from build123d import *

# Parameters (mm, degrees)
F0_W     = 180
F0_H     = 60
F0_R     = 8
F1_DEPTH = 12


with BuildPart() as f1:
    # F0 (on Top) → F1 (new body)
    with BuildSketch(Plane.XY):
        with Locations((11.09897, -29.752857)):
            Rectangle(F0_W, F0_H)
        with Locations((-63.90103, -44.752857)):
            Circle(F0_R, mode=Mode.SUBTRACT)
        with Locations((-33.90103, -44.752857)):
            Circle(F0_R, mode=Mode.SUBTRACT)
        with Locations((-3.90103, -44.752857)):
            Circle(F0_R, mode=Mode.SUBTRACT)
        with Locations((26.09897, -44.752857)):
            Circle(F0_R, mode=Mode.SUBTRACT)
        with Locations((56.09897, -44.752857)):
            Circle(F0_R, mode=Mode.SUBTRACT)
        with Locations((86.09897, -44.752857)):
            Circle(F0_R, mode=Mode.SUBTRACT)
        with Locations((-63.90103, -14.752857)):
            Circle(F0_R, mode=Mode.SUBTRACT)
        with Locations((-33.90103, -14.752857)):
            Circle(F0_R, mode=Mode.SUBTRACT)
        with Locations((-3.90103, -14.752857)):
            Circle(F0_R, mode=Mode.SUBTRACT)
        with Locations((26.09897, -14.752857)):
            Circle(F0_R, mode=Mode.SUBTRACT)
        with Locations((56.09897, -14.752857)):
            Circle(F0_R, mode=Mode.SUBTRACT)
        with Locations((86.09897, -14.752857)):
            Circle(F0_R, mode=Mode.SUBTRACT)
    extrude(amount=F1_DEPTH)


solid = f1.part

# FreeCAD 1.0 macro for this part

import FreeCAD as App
import Part
import Sketcher

doc = App.newDocument("Part")
body = doc.addObject("PartDesign::Body", "Body")

# Sketch on XY plane
sketch1 = body.newObject("Sketcher::SketchObject", "Sketch")
sketch1.AttachmentSupport = (doc.getObject("XY_Plane"), [""])
sketch1.MapMode = "FlatFace"
sketch1.addGeometry(Part.LineSegment(App.Vector(-79, 0, 0), App.Vector(-79, -60, 0)), False)
sketch1.addGeometry(Part.LineSegment(App.Vector(-79, -60, 0), App.Vector(101, -60, 0)), False)
sketch1.addGeometry(Part.LineSegment(App.Vector(101, -60, 0), App.Vector(101, 0, 0)), False)
sketch1.addGeometry(Part.LineSegment(App.Vector(101, 0, 0), App.Vector(-79, 0, 0)), False)
sketch1.addGeometry(Part.Circle(App.Vector(-64, -45, 0), App.Vector(0, 0, 1), 8), False)
sketch1.addGeometry(Part.Circle(App.Vector(-34, -45, 0), App.Vector(0, 0, 1), 8), False)
sketch1.addGeometry(Part.Circle(App.Vector(-4, -45, 0), App.Vector(0, 0, 1), 8), False)
sketch1.addGeometry(Part.Circle(App.Vector(26, -45, 0), App.Vector(0, 0, 1), 8), False)
sketch1.addGeometry(Part.Circle(App.Vector(56, -45, 0), App.Vector(0, 0, 1), 8), False)
sketch1.addGeometry(Part.Circle(App.Vector(86, -45, 0), App.Vector(0, 0, 1), 8), False)
sketch1.addGeometry(Part.Circle(App.Vector(-64, -15, 0), App.Vector(0, 0, 1), 8), False)
sketch1.addGeometry(Part.Circle(App.Vector(-34, -15, 0), App.Vector(0, 0, 1), 8), False)
sketch1.addGeometry(Part.Circle(App.Vector(-4, -15, 0), App.Vector(0, 0, 1), 8), False)
sketch1.addGeometry(Part.Circle(App.Vector(26, -15, 0), App.Vector(0, 0, 1), 8), False)
sketch1.addGeometry(Part.Circle(App.Vector(56, -15, 0), App.Vector(0, 0, 1), 8), False)
sketch1.addGeometry(Part.Circle(App.Vector(86, -15, 0), App.Vector(0, 0, 1), 8), False)
sketch1.addConstraint(Sketcher.Constraint("Coincident", 0, 2, 1, 1))
sketch1.addConstraint(Sketcher.Constraint("Coincident", 1, 2, 2, 1))
sketch1.addConstraint(Sketcher.Constraint("Coincident", 2, 2, 3, 1))
sketch1.addConstraint(Sketcher.Constraint("Coincident", 3, 2, 0, 1))
sketch1.addConstraint(Sketcher.Constraint("Vertical", 0))
sketch1.addConstraint(Sketcher.Constraint("Horizontal", 1))
sketch1.addConstraint(Sketcher.Constraint("Vertical", 2))
sketch1.addConstraint(Sketcher.Constraint("Horizontal", 3))
sketch1.addConstraint(Sketcher.Constraint("Equal", 4, 5))
sketch1.addConstraint(Sketcher.Constraint("Equal", 5, 6))
sketch1.addConstraint(Sketcher.Constraint("Equal", 6, 7))
sketch1.addConstraint(Sketcher.Constraint("Equal", 7, 8))
sketch1.addConstraint(Sketcher.Constraint("Equal", 8, 9))
sketch1.addConstraint(Sketcher.Constraint("Equal", 9, 10))
sketch1.addConstraint(Sketcher.Constraint("Equal", 10, 11))
sketch1.addConstraint(Sketcher.Constraint("Equal", 11, 12))
sketch1.addConstraint(Sketcher.Constraint("Equal", 12, 13))
sketch1.addConstraint(Sketcher.Constraint("Equal", 13, 14))
sketch1.addConstraint(Sketcher.Constraint("Equal", 14, 15))
sketch1.addConstraint(Sketcher.Constraint("Horizontal", 4, 3, 5, 3))
sketch1.addConstraint(Sketcher.Constraint("Horizontal", 5, 3, 6, 3))
sketch1.addConstraint(Sketcher.Constraint("Horizontal", 6, 3, 7, 3))
sketch1.addConstraint(Sketcher.Constraint("Horizontal", 7, 3, 8, 3))
sketch1.addConstraint(Sketcher.Constraint("Horizontal", 8, 3, 9, 3))
sketch1.addConstraint(Sketcher.Constraint("Horizontal", 10, 3, 11, 3))
sketch1.addConstraint(Sketcher.Constraint("Horizontal", 11, 3, 12, 3))
sketch1.addConstraint(Sketcher.Constraint("Horizontal", 12, 3, 13, 3))
sketch1.addConstraint(Sketcher.Constraint("Horizontal", 13, 3, 14, 3))
sketch1.addConstraint(Sketcher.Constraint("Horizontal", 14, 3, 15, 3))
sketch1.addConstraint(Sketcher.Constraint("Vertical", 4, 3, 10, 3))
sketch1.addConstraint(Sketcher.Constraint("Vertical", 5, 3, 11, 3))
sketch1.addConstraint(Sketcher.Constraint("Vertical", 6, 3, 12, 3))
sketch1.addConstraint(Sketcher.Constraint("Vertical", 7, 3, 13, 3))
sketch1.addConstraint(Sketcher.Constraint("Vertical", 8, 3, 14, 3))
sketch1.addConstraint(Sketcher.Constraint("Vertical", 9, 3, 15, 3))
sketch1.addConstraint(Sketcher.Constraint("Diameter", 4, 16.0))
sketch1.addConstraint(Sketcher.Constraint("DistanceX", 1, 1, 1, 2, 180.0))
sketch1.addConstraint(Sketcher.Constraint("DistanceY", 0, 2, 0, 1, 60.0))
sketch1.addConstraint(Sketcher.Constraint("DistanceX", 4, 3, 5, 3, 30.0))
sketch1.addConstraint(Sketcher.Constraint("DistanceX", 5, 3, 6, 3, 30.0))
sketch1.addConstraint(Sketcher.Constraint("DistanceX", 6, 3, 7, 3, 30.0))
sketch1.addConstraint(Sketcher.Constraint("DistanceX", 7, 3, 8, 3, 30.0))
sketch1.addConstraint(Sketcher.Constraint("DistanceX", 8, 3, 9, 3, 30.0))
sketch1.addConstraint(Sketcher.Constraint("DistanceY", 4, 3, 10, 3, 30.0))
sketch1.addConstraint(Sketcher.Constraint("DistanceX", 0, 2, 4, 3, 15.0))
sketch1.addConstraint(Sketcher.Constraint("DistanceY", 0, 2, 4, 3, 15.0))
sketch1.addConstraint(Sketcher.Constraint("DistanceX", 4, 3, -1, 1, 63.90103))
sketch1.addConstraint(Sketcher.Constraint("DistanceY", 4, 3, -1, 1, 44.752857))
pad1 = body.newObject("PartDesign::Pad", "Pad")
pad1.Profile = sketch1
pad1.Length = 12

doc.recompute()
